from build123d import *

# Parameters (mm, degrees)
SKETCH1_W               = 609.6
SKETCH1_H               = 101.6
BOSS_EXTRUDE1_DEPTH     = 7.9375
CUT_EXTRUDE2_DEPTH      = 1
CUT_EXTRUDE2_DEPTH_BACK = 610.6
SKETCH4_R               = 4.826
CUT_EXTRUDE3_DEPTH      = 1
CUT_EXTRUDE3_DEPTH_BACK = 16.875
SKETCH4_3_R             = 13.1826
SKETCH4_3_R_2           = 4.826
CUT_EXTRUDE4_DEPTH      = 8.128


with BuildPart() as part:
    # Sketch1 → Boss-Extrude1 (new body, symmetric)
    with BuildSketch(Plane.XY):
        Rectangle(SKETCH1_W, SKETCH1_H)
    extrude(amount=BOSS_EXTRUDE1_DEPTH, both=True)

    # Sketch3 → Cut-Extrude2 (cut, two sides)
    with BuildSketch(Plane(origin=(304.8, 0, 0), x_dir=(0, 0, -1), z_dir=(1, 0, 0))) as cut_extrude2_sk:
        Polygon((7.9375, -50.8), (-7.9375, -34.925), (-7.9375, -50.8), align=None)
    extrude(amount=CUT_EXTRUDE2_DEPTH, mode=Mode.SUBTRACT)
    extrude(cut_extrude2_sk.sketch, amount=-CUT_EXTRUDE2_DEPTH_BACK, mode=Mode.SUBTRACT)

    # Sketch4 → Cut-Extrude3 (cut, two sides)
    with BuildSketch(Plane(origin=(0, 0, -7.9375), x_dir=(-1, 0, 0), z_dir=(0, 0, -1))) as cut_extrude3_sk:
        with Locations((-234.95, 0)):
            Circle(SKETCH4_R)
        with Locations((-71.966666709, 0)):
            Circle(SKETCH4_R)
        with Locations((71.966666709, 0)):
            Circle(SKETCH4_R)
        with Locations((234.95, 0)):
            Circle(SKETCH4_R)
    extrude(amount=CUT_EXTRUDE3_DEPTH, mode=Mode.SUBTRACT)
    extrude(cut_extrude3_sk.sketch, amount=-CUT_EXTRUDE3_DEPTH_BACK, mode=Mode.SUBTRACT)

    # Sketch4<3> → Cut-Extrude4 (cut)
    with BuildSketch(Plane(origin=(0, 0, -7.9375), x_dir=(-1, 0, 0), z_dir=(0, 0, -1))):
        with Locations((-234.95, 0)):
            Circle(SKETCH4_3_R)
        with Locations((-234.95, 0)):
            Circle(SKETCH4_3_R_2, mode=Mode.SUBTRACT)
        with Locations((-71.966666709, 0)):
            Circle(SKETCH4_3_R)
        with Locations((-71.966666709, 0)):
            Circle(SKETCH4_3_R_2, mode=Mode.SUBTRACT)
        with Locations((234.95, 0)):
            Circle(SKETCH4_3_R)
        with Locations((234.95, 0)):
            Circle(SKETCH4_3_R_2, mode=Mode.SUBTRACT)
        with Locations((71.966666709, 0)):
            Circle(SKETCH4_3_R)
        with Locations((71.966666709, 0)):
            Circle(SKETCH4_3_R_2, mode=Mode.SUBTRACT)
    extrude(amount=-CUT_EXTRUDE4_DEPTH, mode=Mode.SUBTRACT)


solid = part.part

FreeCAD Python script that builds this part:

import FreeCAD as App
import Part
import Sketcher
Q = App.Units.Quantity


def add_polygon(sketch, points):
    """Adds a closed chain of lines whose ends are joined by coincident constraints."""
    first, n = sketch.GeometryCount, len(points)
    for a, b in zip(points, points[1:] + points[:1]):
        sketch.addGeometry(Part.LineSegment(App.Vector(*a, 0), App.Vector(*b, 0)), False)
    for i in range(n):
        sketch.addConstraint(Sketcher.Constraint("Coincident", first + i, 2, first + (i + 1) % n, 1))

doc = App.newDocument("Part")
body = doc.addObject("PartDesign::Body", "Body")

sketch1 = body.newObject("Sketcher::SketchObject", "Sketch")
sketch1.AttachmentSupport = (doc.getObject("XY_Plane"), [""])
sketch1.MapMode = "FlatFace"
add_polygon(sketch1, [(-305, 51), (-305, -51), (305, -51), (305, 51)])
sketch1.addConstraint(Sketcher.Constraint("Vertical", 0))
sketch1.addConstraint(Sketcher.Constraint("Horizontal", 1))
sketch1.addConstraint(Sketcher.Constraint("Vertical", 2))
sketch1.addConstraint(Sketcher.Constraint("Horizontal", 3))
sketch1.addConstraint(Sketcher.Constraint("Symmetric", 0, 2, 2, 2, -1, 1))
sketch1.addConstraint(Sketcher.Constraint("DistanceX", 1, 1, 1, 2, Q("24 in")))
sketch1.addConstraint(Sketcher.Constraint("DistanceY", 0, 2, 0, 1, Q("4 in")))
pad1 = body.newObject("PartDesign::Pad", "Pad")
pad1.Profile = sketch1
pad1.Length = Q("0.625 in")
pad1.Midplane = True

sketch2 = body.newObject("Sketcher::SketchObject", "Sketch001")
sketch2.AttachmentSupport = (doc.getObject("YZ_Plane"), [""])
sketch2.MapMode = "FlatFace"
sketch2.AttachmentOffset = App.Placement(App.Vector(0, 0, 12 * 25.4), App.Rotation())
add_polygon(sketch2, [(-51, -8), (-35, 8), (-51, 8)])
sketch2.addConstraint(Sketcher.Constraint("Horizontal", 1))
sketch2.addConstraint(Sketcher.Constraint("Vertical", 2))
sketch2.addConstraint(Sketcher.Constraint("Equal", 1, 2))
sketch2.addConstraint(Sketcher.Constraint("DistanceX", 1, 2, -1, 1, Q("2 in")))
sketch2.addConstraint(Sketcher.Constraint("DistanceX", 1, 2, 1, 1, Q("0.625 in")))
sketch2.addConstraint(Sketcher.Constraint("DistanceY", -1, 1, 0, 2, Q("0.3125 in")))
pocket1 = body.newObject("PartDesign::Pocket", "Pocket")
pocket1.Profile = sketch2
pocket1.Type = "ThroughAll"
pocket1.Midplane = True

sketch3 = body.newObject("Sketcher::SketchObject", "Sketch002")
sketch3.AttachmentSupport = (doc.getObject("XY_Plane"), [""])
sketch3.MapMode = "FlatFace"
sketch3.AttachmentOffset = App.Placement(App.Vector(0, 0, -0.3125 * 25.4), App.Rotation())
sketch3.addGeometry(Part.Circle(App.Vector(234.9, 0, 0), App.Vector(0, 0, 1), 4.8), False)
sketch3.addGeometry(Part.Circle(App.Vector(72, 0, 0), App.Vector(0, 0, 1), 4.8), False)
sketch3.addGeometry(Part.Circle(App.Vector(-72, 0, 0), App.Vector(0, 0, 1), 4.8), False)
sketch3.addGeometry(Part.Circle(App.Vector(-234.9, 0, 0), App.Vector(0, 0, 1), 4.8), False)
sketch3.addConstraint(Sketcher.Constraint("Equal", 0, 1))
sketch3.addConstraint(Sketcher.Constraint("Equal", 1, 2))
sketch3.addConstraint(Sketcher.Constraint("Equal", 2, 3))
sketch3.addConstraint(Sketcher.Constraint("Symmetric", 1, 3, 2, 3, -1, 1))
sketch3.addConstraint(Sketcher.Constraint("Symmetric", 0, 3, 3, 3, -1, 1))
sketch3.addConstraint(Sketcher.Constraint("PointOnObject", 0, 3, -1))
sketch3.addConstraint(Sketcher.Constraint("PointOnObject", 1, 3, -1))
sketch3.addConstraint(Sketcher.Constraint("Diameter", 0, Q("0.38 in")))
sketch3.addConstraint(Sketcher.Constraint("DistanceX", 3, 3, 0, 3, Q("18.5 in")))
sketch3.addConstraint(Sketcher.Constraint("DistanceX", -1, 1, 1, 3, 71.966667))
pocket2 = body.newObject("PartDesign::Pocket", "Pocket001")
pocket2.Profile = sketch3
pocket2.Type = "ThroughAll"
pocket2.Midplane = True

sketch4 = body.newObject("Sketcher::SketchObject", "Sketch003")
sketch4.AttachmentSupport = (doc.getObject("XY_Plane"), [""])
sketch4.MapMode = "FlatFace"
sketch4.AttachmentOffset = App.Placement(App.Vector(0, 0, -0.3125 * 25.4), App.Rotation())
sketch4.addGeometry(Part.Circle(App.Vector(234.9, 0, 0), App.Vector(0, 0, 1), 13.2), False)
sketch4.addGeometry(Part.Circle(App.Vector(234.9, 0, 0), App.Vector(0, 0, 1), 4.8), False)
sketch4.addGeometry(Part.Circle(App.Vector(72, 0, 0), App.Vector(0, 0, 1), 13.2), False)
sketch4.addGeometry(Part.Circle(App.Vector(72, 0, 0), App.Vector(0, 0, 1), 4.8), False)
sketch4.addGeometry(Part.Circle(App.Vector(-234.9, 0, 0), App.Vector(0, 0, 1), 13.2), False)
sketch4.addGeometry(Part.Circle(App.Vector(-234.9, 0, 0), App.Vector(0, 0, 1), 4.8), False)
sketch4.addGeometry(Part.Circle(App.Vector(-72, 0, 0), App.Vector(0, 0, 1), 13.2), False)
sketch4.addGeometry(Part.Circle(App.Vector(-72, 0, 0), App.Vector(0, 0, 1), 4.8), False)
sketch4.addConstraint(Sketcher.Constraint("Coincident", 1, 3, 0, 3))
sketch4.addConstraint(Sketcher.Constraint("Coincident", 3, 3, 2, 3))
sketch4.addConstraint(Sketcher.Constraint("Coincident", 5, 3, 4, 3))
sketch4.addConstraint(Sketcher.Constraint("Coincident", 7, 3, 6, 3))
sketch4.addConstraint(Sketcher.Constraint("Equal", 0, 2))
sketch4.addConstraint(Sketcher.Constraint("Equal", 1, 3))
sketch4.addConstraint(Sketcher.Constraint("Equal", 2, 4))
sketch4.addConstraint(Sketcher.Constraint("Equal", 3, 5))
sketch4.addConstraint(Sketcher.Constraint("Equal", 4, 6))
sketch4.addConstraint(Sketcher.Constraint("Equal", 5, 7))
sketch4.addConstraint(Sketcher.Constraint("Symmetric", 0, 3, 4, 3, -1, 1))
sketch4.addConstraint(Sketcher.Constraint("Symmetric", 2, 3, 6, 3, -1, 1))
sketch4.addConstraint(Sketcher.Constraint("PointOnObject", 0, 3, -1))
sketch4.addConstraint(Sketcher.Constraint("PointOnObject", 2, 3, -1))
sketch4.addConstraint(Sketcher.Constraint("Diameter", 1, Q("0.38 in")))
sketch4.addConstraint(Sketcher.Constraint("Diameter", 0, Q("1.038 in")))
sketch4.addConstraint(Sketcher.Constraint("DistanceX", 4, 3, 0, 3, Q("18.5 in")))
sketch4.addConstraint(Sketcher.Constraint("DistanceX", -1, 1, 2, 3, 71.966667))
pocket3 = body.newObject("PartDesign::Pocket", "Pocket002")
pocket3.Profile = sketch4
pocket3.Length = Q("0.32 in")
pocket3.Reversed = True

doc.recompute()
